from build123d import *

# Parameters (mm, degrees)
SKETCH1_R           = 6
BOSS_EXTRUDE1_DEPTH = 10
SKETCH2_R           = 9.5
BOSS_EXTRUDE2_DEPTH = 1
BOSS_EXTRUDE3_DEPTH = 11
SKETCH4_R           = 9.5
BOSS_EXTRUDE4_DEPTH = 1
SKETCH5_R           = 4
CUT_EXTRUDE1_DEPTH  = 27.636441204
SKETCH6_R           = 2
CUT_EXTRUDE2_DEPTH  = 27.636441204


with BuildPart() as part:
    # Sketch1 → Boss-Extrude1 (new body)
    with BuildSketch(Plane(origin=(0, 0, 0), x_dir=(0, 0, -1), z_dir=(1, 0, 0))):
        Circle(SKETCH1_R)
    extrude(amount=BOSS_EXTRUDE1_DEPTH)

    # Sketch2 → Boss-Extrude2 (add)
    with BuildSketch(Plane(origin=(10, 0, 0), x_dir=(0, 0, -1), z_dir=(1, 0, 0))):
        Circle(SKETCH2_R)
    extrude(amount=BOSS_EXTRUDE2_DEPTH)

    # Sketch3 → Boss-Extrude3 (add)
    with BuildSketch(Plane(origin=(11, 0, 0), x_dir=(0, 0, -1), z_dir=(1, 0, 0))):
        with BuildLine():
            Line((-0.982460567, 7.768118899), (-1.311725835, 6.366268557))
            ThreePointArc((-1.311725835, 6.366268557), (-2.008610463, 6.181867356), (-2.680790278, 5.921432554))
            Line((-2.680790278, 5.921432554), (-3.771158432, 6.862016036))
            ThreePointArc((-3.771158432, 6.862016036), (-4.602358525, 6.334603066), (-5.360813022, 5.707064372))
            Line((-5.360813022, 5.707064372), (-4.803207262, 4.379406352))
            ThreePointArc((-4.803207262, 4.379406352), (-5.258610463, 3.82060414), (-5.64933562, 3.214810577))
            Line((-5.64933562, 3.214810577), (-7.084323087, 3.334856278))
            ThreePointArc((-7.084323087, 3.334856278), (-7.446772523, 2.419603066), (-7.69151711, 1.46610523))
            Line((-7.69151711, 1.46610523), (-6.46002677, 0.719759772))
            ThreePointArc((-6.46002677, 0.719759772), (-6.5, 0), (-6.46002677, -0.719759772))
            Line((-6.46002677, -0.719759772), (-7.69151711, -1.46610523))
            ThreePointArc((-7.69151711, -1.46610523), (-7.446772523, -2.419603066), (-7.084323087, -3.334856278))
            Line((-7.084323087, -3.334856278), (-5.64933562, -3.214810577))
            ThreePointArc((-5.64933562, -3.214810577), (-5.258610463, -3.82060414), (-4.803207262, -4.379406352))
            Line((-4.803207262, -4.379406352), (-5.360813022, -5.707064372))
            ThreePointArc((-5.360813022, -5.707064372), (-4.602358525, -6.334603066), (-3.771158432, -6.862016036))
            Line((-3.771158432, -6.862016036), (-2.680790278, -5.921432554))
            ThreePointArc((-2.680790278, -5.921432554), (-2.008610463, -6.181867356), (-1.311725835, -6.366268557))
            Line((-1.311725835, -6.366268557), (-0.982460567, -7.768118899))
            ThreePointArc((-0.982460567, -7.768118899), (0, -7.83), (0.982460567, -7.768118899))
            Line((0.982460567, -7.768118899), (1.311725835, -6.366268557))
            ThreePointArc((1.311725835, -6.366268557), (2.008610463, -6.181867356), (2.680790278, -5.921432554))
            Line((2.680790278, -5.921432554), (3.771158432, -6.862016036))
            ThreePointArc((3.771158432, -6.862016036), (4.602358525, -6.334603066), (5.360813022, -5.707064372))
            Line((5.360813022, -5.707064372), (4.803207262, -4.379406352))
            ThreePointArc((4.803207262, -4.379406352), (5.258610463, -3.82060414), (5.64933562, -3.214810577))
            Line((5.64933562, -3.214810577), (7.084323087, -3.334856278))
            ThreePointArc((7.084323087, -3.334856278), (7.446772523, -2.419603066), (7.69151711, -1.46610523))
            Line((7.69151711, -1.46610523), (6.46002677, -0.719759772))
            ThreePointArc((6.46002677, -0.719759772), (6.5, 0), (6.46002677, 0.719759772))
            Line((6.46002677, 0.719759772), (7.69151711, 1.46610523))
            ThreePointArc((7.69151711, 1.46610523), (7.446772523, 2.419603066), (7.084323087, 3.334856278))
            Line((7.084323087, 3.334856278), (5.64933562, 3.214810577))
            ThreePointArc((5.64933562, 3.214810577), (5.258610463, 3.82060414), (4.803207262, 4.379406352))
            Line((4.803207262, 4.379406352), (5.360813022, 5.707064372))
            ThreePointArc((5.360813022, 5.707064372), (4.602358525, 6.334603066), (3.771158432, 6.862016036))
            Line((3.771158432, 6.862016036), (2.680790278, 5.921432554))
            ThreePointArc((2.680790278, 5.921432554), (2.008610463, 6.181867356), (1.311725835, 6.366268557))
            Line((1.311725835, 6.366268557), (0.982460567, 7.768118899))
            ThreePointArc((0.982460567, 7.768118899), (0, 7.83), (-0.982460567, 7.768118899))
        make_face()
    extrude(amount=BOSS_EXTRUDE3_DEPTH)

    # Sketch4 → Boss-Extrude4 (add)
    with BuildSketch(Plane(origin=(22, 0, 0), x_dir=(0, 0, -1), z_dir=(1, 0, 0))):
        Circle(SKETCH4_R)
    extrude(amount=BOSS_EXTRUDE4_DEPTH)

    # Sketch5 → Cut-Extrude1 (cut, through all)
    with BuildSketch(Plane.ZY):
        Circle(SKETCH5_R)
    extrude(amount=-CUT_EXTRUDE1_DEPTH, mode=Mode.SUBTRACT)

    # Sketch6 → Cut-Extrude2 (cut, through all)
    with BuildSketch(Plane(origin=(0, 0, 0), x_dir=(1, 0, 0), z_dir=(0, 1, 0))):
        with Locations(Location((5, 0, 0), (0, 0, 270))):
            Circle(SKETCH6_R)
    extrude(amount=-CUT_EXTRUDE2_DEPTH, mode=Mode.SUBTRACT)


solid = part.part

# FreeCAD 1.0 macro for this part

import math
import FreeCAD as App
import Part
import Sketcher

doc = App.newDocument("Part")
body = doc.addObject("PartDesign::Body", "Body")

# Sketch on YZ plane
sketch1 = body.newObject("Sketcher::SketchObject", "Sketch")
sketch1.AttachmentSupport = (doc.getObject("YZ_Plane"), [""])
sketch1.MapMode = "FlatFace"
sketch1.addGeometry(Part.Circle(App.Vector(0, 0, 0), App.Vector(0, 0, 1), 6), False)
sketch1.addConstraint([
    Sketcher.Constraint("Coincident", 0, 3, -1, 1),
    Sketcher.Constraint("Diameter", 0, 12.0),
])
pad1 = body.newObject("PartDesign::Pad", "Pad")
pad1.Profile = sketch1
pad1.Length = 10

# Sketch on YZ plane
sketch2 = body.newObject("Sketcher::SketchObject", "Sketch001")
sketch2.AttachmentSupport = (doc.getObject("YZ_Plane"), [""])
sketch2.MapMode = "FlatFace"
sketch2.AttachmentOffset = App.Placement(App.Vector(0, 0, 10), App.Rotation())
sketch2.addGeometry(Part.Circle(App.Vector(0, 0, 0), App.Vector(0, 0, 1), 9.5), False)
sketch2.addConstraint([
    Sketcher.Constraint("Coincident", 0, 3, -1, 1),
    Sketcher.Constraint("Diameter", 0, 19.0),
])
pad2 = body.newObject("PartDesign::Pad", "Pad001")
pad2.Profile = sketch2
pad2.Length = 1

# Sketch on YZ plane
sketch3 = body.newObject("Sketcher::SketchObject", "Sketch002")
sketch3.AttachmentSupport = (doc.getObject("YZ_Plane"), [""])
sketch3.MapMode = "FlatFace"
sketch3.AttachmentOffset = App.Placement(App.Vector(0, 0, 11), App.Rotation())
sketch3.addGeometry([
    Part.LineSegment(App.Vector(7.768119, 0.982461, 0), App.Vector(6.366269, 1.311726, 0)),  # 0
    Part.ArcOfCircle(Part.Circle(App.Vector(0, 0, 0), App.Vector(0, 0, 1), 6.5), math.radians(11.642471), math.radians(24.35753)),  # 1
    Part.LineSegment(App.Vector(5.921433, 2.68079, 0), App.Vector(6.862016, 3.771158, 0)),  # 2
    Part.ArcOfCircle(Part.Circle(App.Vector(0, 0, 0), App.Vector(0, 0, 1), 7.83), math.radians(28.791877), math.radians(43.208123)),  # 3
    Part.LineSegment(App.Vector(5.707064, 5.360813, 0), App.Vector(4.379406, 4.803207, 0)),  # 4
    Part.ArcOfCircle(Part.Circle(App.Vector(0, 0, 0), App.Vector(0, 0, 1), 6.5), math.radians(47.64247), math.radians(60.35753)),  # 5
    Part.LineSegment(App.Vector(3.214811, 5.649336, 0), App.Vector(3.334856, 7.084323, 0)),  # 6
    Part.ArcOfCircle(Part.Circle(App.Vector(0, 0, 0), App.Vector(0, 0, 1), 7.83), math.radians(64.791877), math.radians(79.208123)),  # 7
    Part.LineSegment(App.Vector(1.466105, 7.691517, 0), App.Vector(0.71976, 6.460027, 0)),  # 8
    Part.ArcOfCircle(Part.Circle(App.Vector(0, 0, 0), App.Vector(0, 0, 1), 6.5), math.radians(83.64247), math.radians(96.35753)),  # 9
    Part.LineSegment(App.Vector(-0.71976, 6.460027, 0), App.Vector(-1.466105, 7.691517, 0)),  # 10
    Part.ArcOfCircle(Part.Circle(App.Vector(0, 0, 0), App.Vector(0, 0, 1), 7.83), math.radians(100.791877), math.radians(115.208123)),  # 11
    Part.LineSegment(App.Vector(-3.334856, 7.084323, 0), App.Vector(-3.214811, 5.649336, 0)),  # 12
    Part.ArcOfCircle(Part.Circle(App.Vector(0, 0, 0), App.Vector(0, 0, 1), 6.5), math.radians(119.64247), math.radians(132.35753)),  # 13
    Part.LineSegment(App.Vector(-4.379406, 4.803207, 0), App.Vector(-5.707064, 5.360813, 0)),  # 14
    Part.ArcOfCircle(Part.Circle(App.Vector(0, 0, 0), App.Vector(0, 0, 1), 7.83), math.radians(136.791877), math.radians(151.208123)),  # 15
    Part.LineSegment(App.Vector(-6.862016, 3.771158, 0), App.Vector(-5.921433, 2.68079, 0)),  # 16
    Part.ArcOfCircle(Part.Circle(App.Vector(0, 0, 0), App.Vector(0, 0, 1), 6.5), math.radians(155.64247), math.radians(168.357529)),  # 17
    Part.LineSegment(App.Vector(-6.366269, 1.311726, 0), App.Vector(-7.768119, 0.982461, 0)),  # 18
    Part.ArcOfCircle(Part.Circle(App.Vector(0, 0, 0), App.Vector(0, 0, 1), 7.83), math.radians(172.791877), math.radians(187.208123)),  # 19
    Part.LineSegment(App.Vector(-7.768119, -0.982461, 0), App.Vector(-6.366269, -1.311726, 0)),  # 20
    Part.ArcOfCircle(Part.Circle(App.Vector(0, 0, 0), App.Vector(0, 0, 1), 6.5), math.radians(-168.357529), math.radians(-155.64247)),  # 21
    Part.LineSegment(App.Vector(-5.921433, -2.68079, 0), App.Vector(-6.862016, -3.771158, 0)),  # 22
    Part.ArcOfCircle(Part.Circle(App.Vector(0, 0, 0), App.Vector(0, 0, 1), 7.83), math.radians(-151.208123), math.radians(-136.791877)),  # 23
    Part.LineSegment(App.Vector(-5.707064, -5.360813, 0), App.Vector(-4.379406, -4.803207, 0)),  # 24
    Part.ArcOfCircle(Part.Circle(App.Vector(0, 0, 0), App.Vector(0, 0, 1), 6.5), math.radians(-132.35753), math.radians(-119.64247)),  # 25
    Part.LineSegment(App.Vector(-3.214811, -5.649336, 0), App.Vector(-3.334856, -7.084323, 0)),  # 26
    Part.ArcOfCircle(Part.Circle(App.Vector(0, 0, 0), App.Vector(0, 0, 1), 7.83), math.radians(-115.208123), math.radians(-100.791877)),  # 27
    Part.LineSegment(App.Vector(-1.466105, -7.691517, 0), App.Vector(-0.71976, -6.460027, 0)),  # 28
    Part.ArcOfCircle(Part.Circle(App.Vector(0, 0, 0), App.Vector(0, 0, 1), 6.5), math.radians(-96.35753), math.radians(-83.64247)),  # 29
    Part.LineSegment(App.Vector(0.71976, -6.460027, 0), App.Vector(1.466105, -7.691517, 0)),  # 30
    Part.ArcOfCircle(Part.Circle(App.Vector(0, 0, 0), App.Vector(0, 0, 1), 7.83), math.radians(-79.208123), math.radians(-64.791877)),  # 31
    Part.LineSegment(App.Vector(3.334856, -7.084323, 0), App.Vector(3.214811, -5.649336, 0)),  # 32
    Part.ArcOfCircle(Part.Circle(App.Vector(0, 0, 0), App.Vector(0, 0, 1), 6.5), math.radians(-60.35753), math.radians(-47.64247)),  # 33
    Part.LineSegment(App.Vector(4.379406, -4.803207, 0), App.Vector(5.707064, -5.360813, 0)),  # 34
    Part.ArcOfCircle(Part.Circle(App.Vector(0, 0, 0), App.Vector(0, 0, 1), 7.83), math.radians(-43.208123), math.radians(-28.791877)),  # 35
    Part.LineSegment(App.Vector(6.862016, -3.771158, 0), App.Vector(5.921433, -2.68079, 0)),  # 36
    Part.ArcOfCircle(Part.Circle(App.Vector(0, 0, 0), App.Vector(0, 0, 1), 6.5), math.radians(-24.35753), math.radians(-11.642471)),  # 37
    Part.LineSegment(App.Vector(6.366269, -1.311726, 0), App.Vector(7.768119, -0.982461, 0)),  # 38
    Part.ArcOfCircle(Part.Circle(App.Vector(0, 0, 0), App.Vector(0, 0, 1), 7.83), math.radians(-7.208123), math.radians(7.208123)),  # 39
], False)
sketch3.addConstraint([
    Sketcher.Constraint("Coincident", 0, 2, 1, 1),
    Sketcher.Constraint("Coincident", 1, 2, 2, 1),
    Sketcher.Constraint("Coincident", 2, 2, 3, 1),
    Sketcher.Constraint("Coincident", 3, 2, 4, 1),
    Sketcher.Constraint("Coincident", 4, 2, 5, 1),
    Sketcher.Constraint("Coincident", 5, 2, 6, 1),
    Sketcher.Constraint("Coincident", 6, 2, 7, 1),
    Sketcher.Constraint("Coincident", 7, 2, 8, 1),
    Sketcher.Constraint("Coincident", 8, 2, 9, 1),
    Sketcher.Constraint("Coincident", 9, 2, 10, 1),
    Sketcher.Constraint("Coincident", 10, 2, 11, 1),
    Sketcher.Constraint("Coincident", 11, 2, 12, 1),
    Sketcher.Constraint("Coincident", 12, 2, 13, 1),
    Sketcher.Constraint("Coincident", 13, 2, 14, 1),
    Sketcher.Constraint("Coincident", 14, 2, 15, 1),
    Sketcher.Constraint("Coincident", 15, 2, 16, 1),
    Sketcher.Constraint("Coincident", 16, 2, 17, 1),
    Sketcher.Constraint("Coincident", 17, 2, 18, 1),
    Sketcher.Constraint("Coincident", 18, 2, 19, 1),
    Sketcher.Constraint("Coincident", 19, 2, 20, 1),
    Sketcher.Constraint("Coincident", 20, 2, 21, 1),
    Sketcher.Constraint("Coincident", 21, 2, 22, 1),
    Sketcher.Constraint("Coincident", 22, 2, 23, 1),
    Sketcher.Constraint("Coincident", 23, 2, 24, 1),
    Sketcher.Constraint("Coincident", 24, 2, 25, 1),
    Sketcher.Constraint("Coincident", 25, 2, 26, 1),
    Sketcher.Constraint("Coincident", 26, 2, 27, 1),
    Sketcher.Constraint("Coincident", 27, 2, 28, 1),
    Sketcher.Constraint("Coincident", 28, 2, 29, 1),
    Sketcher.Constraint("Coincident", 29, 2, 30, 1),
    Sketcher.Constraint("Coincident", 30, 2, 31, 1),
    Sketcher.Constraint("Coincident", 31, 2, 32, 1),
    Sketcher.Constraint("Coincident", 32, 2, 33, 1),
    Sketcher.Constraint("Coincident", 33, 2, 34, 1),
    Sketcher.Constraint("Coincident", 34, 2, 35, 1),
    Sketcher.Constraint("Coincident", 35, 2, 36, 1),
    Sketcher.Constraint("Coincident", 36, 2, 37, 1),
    Sketcher.Constraint("Coincident", 37, 2, 38, 1),
    Sketcher.Constraint("Coincident", 38, 2, 39, 1),
    Sketcher.Constraint("Coincident", 39, 2, 0, 1),
    Sketcher.Constraint("Coincident", 1, 3, -1, 1),
    Sketcher.Constraint("Coincident", 3, 3, -1, 1),
    Sketcher.Constraint("Coincident", 5, 3, -1, 1),
    Sketcher.Constraint("Coincident", 7, 3, -1, 1),
    Sketcher.Constraint("Coincident", 9, 3, -1, 1),
    Sketcher.Constraint("Coincident", 11, 3, -1, 1),
    Sketcher.Constraint("Coincident", 13, 3, -1, 1),
    Sketcher.Constraint("Coincident", 15, 3, -1, 1),
    Sketcher.Constraint("Coincident", 17, 3, -1, 1),
    Sketcher.Constraint("Coincident", 19, 3, -1, 1),
    Sketcher.Constraint("Coincident", 21, 3, -1, 1),
    Sketcher.Constraint("Coincident", 23, 3, -1, 1),
    Sketcher.Constraint("Coincident", 25, 3, -1, 1),
    Sketcher.Constraint("Coincident", 27, 3, -1, 1),
    Sketcher.Constraint("Coincident", 29, 3, -1, 1),
    Sketcher.Constraint("Coincident", 31, 3, -1, 1),
    Sketcher.Constraint("Coincident", 33, 3, -1, 1),
    Sketcher.Constraint("Coincident", 35, 3, -1, 1),
    Sketcher.Constraint("Coincident", 37, 3, -1, 1),
    Sketcher.Constraint("Coincident", 39, 3, -1, 1),
    Sketcher.Constraint("Equal", 1, 5),
    Sketcher.Constraint("Equal", 3, 7),
    Sketcher.Constraint("Equal", 5, 9),
    Sketcher.Constraint("Equal", 7, 11),
    Sketcher.Constraint("Equal", 9, 13),
    Sketcher.Constraint("Equal", 11, 15),
    Sketcher.Constraint("Equal", 13, 17),
    Sketcher.Constraint("Equal", 15, 19),
    Sketcher.Constraint("Equal", 17, 21),
    Sketcher.Constraint("Equal", 19, 23),
    Sketcher.Constraint("Equal", 21, 25),
    Sketcher.Constraint("Equal", 23, 27),
    Sketcher.Constraint("Equal", 25, 29),
    Sketcher.Constraint("Equal", 27, 31),
    Sketcher.Constraint("Equal", 29, 33),
    Sketcher.Constraint("Equal", 31, 35),
    Sketcher.Constraint("Equal", 33, 37),
    Sketcher.Constraint("Equal", 35, 39),
    Sketcher.Constraint("Parallel", 0, 20),
    Sketcher.Constraint("Parallel", 2, 22),
    Sketcher.Constraint("Parallel", 4, 24),
    Sketcher.Constraint("Parallel", 6, 26),
    Sketcher.Constraint("Parallel", 8, 28),
    Sketcher.Constraint("Parallel", 10, 30),
    Sketcher.Constraint("Parallel", 12, 32),
    Sketcher.Constraint("Parallel", 14, 34),
    Sketcher.Constraint("Parallel", 16, 36),
    Sketcher.Constraint("Parallel", 18, 38),
    Sketcher.Constraint("Horizontal", 8, 2, 9, 2),
    Sketcher.Constraint("Horizontal", 7, 2, 10, 2),
    Sketcher.Constraint("Horizontal", 6, 2, 11, 2),
    Sketcher.Constraint("Horizontal", 5, 2, 12, 2),
    Sketcher.Constraint("Horizontal", 4, 2, 13, 2),
    Sketcher.Constraint("Horizontal", 3, 2, 14, 2),
    Sketcher.Constraint("Horizontal", 2, 2, 15, 2),
    Sketcher.Constraint("Horizontal", 1, 2, 16, 2),
    Sketcher.Constraint("Horizontal", 0, 2, 17, 2),
    Sketcher.Constraint("Horizontal", 28, 2, 29, 2),
    Sketcher.Constraint("Horizontal", 26, 2, 31, 2),
    Sketcher.Constraint("Horizontal", 24, 2, 33, 2),
    Sketcher.Constraint("Horizontal", 22, 2, 35, 2),
    Sketcher.Constraint("Horizontal", 20, 2, 37, 2),
    Sketcher.Constraint("Horizontal", 19, 2, 38, 2),
    Sketcher.Constraint("Vertical", 18, 2, 19, 2),
    Sketcher.Constraint("Vertical", 16, 2, 21, 2),
    Sketcher.Constraint("Vertical", 14, 2, 23, 2),
    Sketcher.Constraint("Vertical", 12, 2, 25, 2),
    Sketcher.Constraint("Vertical", 10, 2, 27, 2),
    Sketcher.Constraint("Equal", 0, 2),
    Sketcher.Constraint("Equal", 2, 4),
    Sketcher.Constraint("Equal", 4, 6),
    Sketcher.Constraint("Equal", 6, 8),
    Sketcher.Constraint("Radius", 1, 6.5),
    Sketcher.Constraint("Radius", 3, 7.83),
    Sketcher.Constraint("Distance", 0, 1.44),
    Sketcher.Constraint("DistanceX", 7, 2, 4, 2, 2.913301),
    Sketcher.Constraint("DistanceX", -1, 1, 0, 2, 6.366269),
    Sketcher.Constraint("DistanceY", -1, 1, 1, 2, 2.68079),
    Sketcher.Constraint("DistanceX", -1, 1, 5, 2, 3.214811),
    Sketcher.Constraint("DistanceX", -1, 1, 8, 2, 0.71976),
])
pad3 = body.newObject("PartDesign::Pad", "Pad002")
pad3.Profile = sketch3
pad3.Length = 11

# Sketch on YZ plane
sketch4 = body.newObject("Sketcher::SketchObject", "Sketch003")
sketch4.AttachmentSupport = (doc.getObject("YZ_Plane"), [""])
sketch4.MapMode = "FlatFace"
sketch4.AttachmentOffset = App.Placement(App.Vector(0, 0, 22), App.Rotation())
sketch4.addGeometry(Part.Circle(App.Vector(0, 0, 0), App.Vector(0, 0, 1), 9.5), False)
sketch4.addConstraint([
    Sketcher.Constraint("Coincident", 0, 3, -1, 1),
    Sketcher.Constraint("Diameter", 0, 19.0),
])
pad4 = body.newObject("PartDesign::Pad", "Pad003")
pad4.Profile = sketch4
pad4.Length = 1

# Sketch on YZ plane
sketch5 = body.newObject("Sketcher::SketchObject", "Sketch004")
sketch5.AttachmentSupport = (doc.getObject("YZ_Plane"), [""])
sketch5.MapMode = "FlatFace"
sketch5.addGeometry(Part.Circle(App.Vector(0, 0, 0), App.Vector(0, 0, 1), 4), False)
sketch5.addConstraint([
    Sketcher.Constraint("Coincident", 0, 3, -1, 1),
    Sketcher.Constraint("Diameter", 0, 8.0),
])
pocket1 = body.newObject("PartDesign::Pocket", "Pocket")
pocket1.Profile = sketch5
pocket1.Type = "ThroughAll"
pocket1.Reversed = True

# Sketch on XZ plane
sketch6 = body.newObject("Sketcher::SketchObject", "Sketch005")
sketch6.AttachmentSupport = (doc.getObject("XZ_Plane"), [""])
sketch6.MapMode = "FlatFace"
sketch6.addGeometry(Part.Circle(App.Vector(5, 0, 0), App.Vector(0, 0, 1), 2), False)
sketch6.addConstraint([
    Sketcher.Constraint("PointOnObject", 0, 3, -1),
    Sketcher.Constraint("Diameter", 0, 4.0),
    Sketcher.Constraint("DistanceX", -1, 1, 0, 3, 5.0),
])
pocket2 = body.newObject("PartDesign::Pocket", "Pocket001")
pocket2.Profile = sketch6
pocket2.Type = "ThroughAll"
pocket2.Reversed = True

doc.recompute()
